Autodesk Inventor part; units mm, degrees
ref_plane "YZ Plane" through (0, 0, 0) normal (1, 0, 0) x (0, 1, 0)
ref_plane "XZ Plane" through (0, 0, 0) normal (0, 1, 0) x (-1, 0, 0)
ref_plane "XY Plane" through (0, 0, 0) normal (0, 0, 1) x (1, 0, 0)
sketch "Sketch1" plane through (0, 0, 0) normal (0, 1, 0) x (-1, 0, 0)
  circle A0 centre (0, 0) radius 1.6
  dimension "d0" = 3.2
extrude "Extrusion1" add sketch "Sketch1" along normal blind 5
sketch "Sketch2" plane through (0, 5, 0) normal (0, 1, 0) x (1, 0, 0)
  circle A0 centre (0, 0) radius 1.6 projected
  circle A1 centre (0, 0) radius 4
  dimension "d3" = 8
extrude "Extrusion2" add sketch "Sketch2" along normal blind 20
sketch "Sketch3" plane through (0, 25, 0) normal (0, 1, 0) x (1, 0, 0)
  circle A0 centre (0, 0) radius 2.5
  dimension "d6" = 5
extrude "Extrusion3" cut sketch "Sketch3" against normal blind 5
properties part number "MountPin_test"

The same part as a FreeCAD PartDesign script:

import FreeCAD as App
import Part
import Sketcher
from FreeCAD import Vector
Q = App.Units.Quantity

doc = App.newDocument("Part")
body = doc.addObject("PartDesign::Body", "Body")
body.AllowCompound = True

sketch1 = body.newObject("Sketcher::SketchObject", "Sketch")
sketch1.AttachmentSupport = (doc.getObject("XZ_Plane"), [""])
sketch1.MapMode = "FlatFace"
sketch1.addGeometry(Part.Circle(Vector(0, 0, 0), Vector(0, 0, 1), 1.6), False)
sketch1.addConstraint([
    Sketcher.Constraint("Coincident", 0, 3, -1, 1),
    Sketcher.Constraint("Diameter", 0, Q("3.2 mm")),
])
pad1 = body.newObject("PartDesign::Pad", "Pad")
pad1.Profile = sketch1
pad1.Length = 5
pad1.Reversed = True

sketch2 = body.newObject("Sketcher::SketchObject", "Sketch001")
sketch2.AttachmentSupport = (doc.getObject("XZ_Plane"), [""])
sketch2.MapMode = "FlatFace"
sketch2.AttachmentOffset = App.Placement(Vector(0, 0, -5), App.Rotation())
sketch2.addGeometry([
    Part.Circle(Vector(0, 0, 0), Vector(0, 0, 1), 4),
    Part.Circle(Vector(0, 0, 0), Vector(0, 0, 1), 1.6),
], False)
sketch2.addConstraint([
    Sketcher.Constraint("Coincident", 0, 3, -1, 1),
    Sketcher.Constraint("Coincident", 1, 3, -1, 1),
    Sketcher.Constraint("Diameter", 0, Q("8 mm")),
    Sketcher.Constraint("Diameter", 1, Q("3.2 mm")),
])
pad2 = body.newObject("PartDesign::Pad", "Pad001")
pad2.Profile = sketch2
pad2.Length = 20
pad2.Reversed = True

sketch3 = body.newObject("Sketcher::SketchObject", "Sketch002")
sketch3.AttachmentSupport = (doc.getObject("XZ_Plane"), [""])
sketch3.MapMode = "FlatFace"
sketch3.AttachmentOffset = App.Placement(Vector(0, 0, -25), App.Rotation())
sketch3.addGeometry(Part.Circle(Vector(0, 0, 0), Vector(0, 0, 1), 2.5), False)
sketch3.addConstraint([
    Sketcher.Constraint("Coincident", 0, 3, -1, 1),
    Sketcher.Constraint("Diameter", 0, Q("5 mm")),
])
pocket1 = body.newObject("PartDesign::Pocket", "Pocket")
pocket1.Profile = sketch3
pocket1.Length = 5
pocket1.Reversed = True

doc.recompute()
